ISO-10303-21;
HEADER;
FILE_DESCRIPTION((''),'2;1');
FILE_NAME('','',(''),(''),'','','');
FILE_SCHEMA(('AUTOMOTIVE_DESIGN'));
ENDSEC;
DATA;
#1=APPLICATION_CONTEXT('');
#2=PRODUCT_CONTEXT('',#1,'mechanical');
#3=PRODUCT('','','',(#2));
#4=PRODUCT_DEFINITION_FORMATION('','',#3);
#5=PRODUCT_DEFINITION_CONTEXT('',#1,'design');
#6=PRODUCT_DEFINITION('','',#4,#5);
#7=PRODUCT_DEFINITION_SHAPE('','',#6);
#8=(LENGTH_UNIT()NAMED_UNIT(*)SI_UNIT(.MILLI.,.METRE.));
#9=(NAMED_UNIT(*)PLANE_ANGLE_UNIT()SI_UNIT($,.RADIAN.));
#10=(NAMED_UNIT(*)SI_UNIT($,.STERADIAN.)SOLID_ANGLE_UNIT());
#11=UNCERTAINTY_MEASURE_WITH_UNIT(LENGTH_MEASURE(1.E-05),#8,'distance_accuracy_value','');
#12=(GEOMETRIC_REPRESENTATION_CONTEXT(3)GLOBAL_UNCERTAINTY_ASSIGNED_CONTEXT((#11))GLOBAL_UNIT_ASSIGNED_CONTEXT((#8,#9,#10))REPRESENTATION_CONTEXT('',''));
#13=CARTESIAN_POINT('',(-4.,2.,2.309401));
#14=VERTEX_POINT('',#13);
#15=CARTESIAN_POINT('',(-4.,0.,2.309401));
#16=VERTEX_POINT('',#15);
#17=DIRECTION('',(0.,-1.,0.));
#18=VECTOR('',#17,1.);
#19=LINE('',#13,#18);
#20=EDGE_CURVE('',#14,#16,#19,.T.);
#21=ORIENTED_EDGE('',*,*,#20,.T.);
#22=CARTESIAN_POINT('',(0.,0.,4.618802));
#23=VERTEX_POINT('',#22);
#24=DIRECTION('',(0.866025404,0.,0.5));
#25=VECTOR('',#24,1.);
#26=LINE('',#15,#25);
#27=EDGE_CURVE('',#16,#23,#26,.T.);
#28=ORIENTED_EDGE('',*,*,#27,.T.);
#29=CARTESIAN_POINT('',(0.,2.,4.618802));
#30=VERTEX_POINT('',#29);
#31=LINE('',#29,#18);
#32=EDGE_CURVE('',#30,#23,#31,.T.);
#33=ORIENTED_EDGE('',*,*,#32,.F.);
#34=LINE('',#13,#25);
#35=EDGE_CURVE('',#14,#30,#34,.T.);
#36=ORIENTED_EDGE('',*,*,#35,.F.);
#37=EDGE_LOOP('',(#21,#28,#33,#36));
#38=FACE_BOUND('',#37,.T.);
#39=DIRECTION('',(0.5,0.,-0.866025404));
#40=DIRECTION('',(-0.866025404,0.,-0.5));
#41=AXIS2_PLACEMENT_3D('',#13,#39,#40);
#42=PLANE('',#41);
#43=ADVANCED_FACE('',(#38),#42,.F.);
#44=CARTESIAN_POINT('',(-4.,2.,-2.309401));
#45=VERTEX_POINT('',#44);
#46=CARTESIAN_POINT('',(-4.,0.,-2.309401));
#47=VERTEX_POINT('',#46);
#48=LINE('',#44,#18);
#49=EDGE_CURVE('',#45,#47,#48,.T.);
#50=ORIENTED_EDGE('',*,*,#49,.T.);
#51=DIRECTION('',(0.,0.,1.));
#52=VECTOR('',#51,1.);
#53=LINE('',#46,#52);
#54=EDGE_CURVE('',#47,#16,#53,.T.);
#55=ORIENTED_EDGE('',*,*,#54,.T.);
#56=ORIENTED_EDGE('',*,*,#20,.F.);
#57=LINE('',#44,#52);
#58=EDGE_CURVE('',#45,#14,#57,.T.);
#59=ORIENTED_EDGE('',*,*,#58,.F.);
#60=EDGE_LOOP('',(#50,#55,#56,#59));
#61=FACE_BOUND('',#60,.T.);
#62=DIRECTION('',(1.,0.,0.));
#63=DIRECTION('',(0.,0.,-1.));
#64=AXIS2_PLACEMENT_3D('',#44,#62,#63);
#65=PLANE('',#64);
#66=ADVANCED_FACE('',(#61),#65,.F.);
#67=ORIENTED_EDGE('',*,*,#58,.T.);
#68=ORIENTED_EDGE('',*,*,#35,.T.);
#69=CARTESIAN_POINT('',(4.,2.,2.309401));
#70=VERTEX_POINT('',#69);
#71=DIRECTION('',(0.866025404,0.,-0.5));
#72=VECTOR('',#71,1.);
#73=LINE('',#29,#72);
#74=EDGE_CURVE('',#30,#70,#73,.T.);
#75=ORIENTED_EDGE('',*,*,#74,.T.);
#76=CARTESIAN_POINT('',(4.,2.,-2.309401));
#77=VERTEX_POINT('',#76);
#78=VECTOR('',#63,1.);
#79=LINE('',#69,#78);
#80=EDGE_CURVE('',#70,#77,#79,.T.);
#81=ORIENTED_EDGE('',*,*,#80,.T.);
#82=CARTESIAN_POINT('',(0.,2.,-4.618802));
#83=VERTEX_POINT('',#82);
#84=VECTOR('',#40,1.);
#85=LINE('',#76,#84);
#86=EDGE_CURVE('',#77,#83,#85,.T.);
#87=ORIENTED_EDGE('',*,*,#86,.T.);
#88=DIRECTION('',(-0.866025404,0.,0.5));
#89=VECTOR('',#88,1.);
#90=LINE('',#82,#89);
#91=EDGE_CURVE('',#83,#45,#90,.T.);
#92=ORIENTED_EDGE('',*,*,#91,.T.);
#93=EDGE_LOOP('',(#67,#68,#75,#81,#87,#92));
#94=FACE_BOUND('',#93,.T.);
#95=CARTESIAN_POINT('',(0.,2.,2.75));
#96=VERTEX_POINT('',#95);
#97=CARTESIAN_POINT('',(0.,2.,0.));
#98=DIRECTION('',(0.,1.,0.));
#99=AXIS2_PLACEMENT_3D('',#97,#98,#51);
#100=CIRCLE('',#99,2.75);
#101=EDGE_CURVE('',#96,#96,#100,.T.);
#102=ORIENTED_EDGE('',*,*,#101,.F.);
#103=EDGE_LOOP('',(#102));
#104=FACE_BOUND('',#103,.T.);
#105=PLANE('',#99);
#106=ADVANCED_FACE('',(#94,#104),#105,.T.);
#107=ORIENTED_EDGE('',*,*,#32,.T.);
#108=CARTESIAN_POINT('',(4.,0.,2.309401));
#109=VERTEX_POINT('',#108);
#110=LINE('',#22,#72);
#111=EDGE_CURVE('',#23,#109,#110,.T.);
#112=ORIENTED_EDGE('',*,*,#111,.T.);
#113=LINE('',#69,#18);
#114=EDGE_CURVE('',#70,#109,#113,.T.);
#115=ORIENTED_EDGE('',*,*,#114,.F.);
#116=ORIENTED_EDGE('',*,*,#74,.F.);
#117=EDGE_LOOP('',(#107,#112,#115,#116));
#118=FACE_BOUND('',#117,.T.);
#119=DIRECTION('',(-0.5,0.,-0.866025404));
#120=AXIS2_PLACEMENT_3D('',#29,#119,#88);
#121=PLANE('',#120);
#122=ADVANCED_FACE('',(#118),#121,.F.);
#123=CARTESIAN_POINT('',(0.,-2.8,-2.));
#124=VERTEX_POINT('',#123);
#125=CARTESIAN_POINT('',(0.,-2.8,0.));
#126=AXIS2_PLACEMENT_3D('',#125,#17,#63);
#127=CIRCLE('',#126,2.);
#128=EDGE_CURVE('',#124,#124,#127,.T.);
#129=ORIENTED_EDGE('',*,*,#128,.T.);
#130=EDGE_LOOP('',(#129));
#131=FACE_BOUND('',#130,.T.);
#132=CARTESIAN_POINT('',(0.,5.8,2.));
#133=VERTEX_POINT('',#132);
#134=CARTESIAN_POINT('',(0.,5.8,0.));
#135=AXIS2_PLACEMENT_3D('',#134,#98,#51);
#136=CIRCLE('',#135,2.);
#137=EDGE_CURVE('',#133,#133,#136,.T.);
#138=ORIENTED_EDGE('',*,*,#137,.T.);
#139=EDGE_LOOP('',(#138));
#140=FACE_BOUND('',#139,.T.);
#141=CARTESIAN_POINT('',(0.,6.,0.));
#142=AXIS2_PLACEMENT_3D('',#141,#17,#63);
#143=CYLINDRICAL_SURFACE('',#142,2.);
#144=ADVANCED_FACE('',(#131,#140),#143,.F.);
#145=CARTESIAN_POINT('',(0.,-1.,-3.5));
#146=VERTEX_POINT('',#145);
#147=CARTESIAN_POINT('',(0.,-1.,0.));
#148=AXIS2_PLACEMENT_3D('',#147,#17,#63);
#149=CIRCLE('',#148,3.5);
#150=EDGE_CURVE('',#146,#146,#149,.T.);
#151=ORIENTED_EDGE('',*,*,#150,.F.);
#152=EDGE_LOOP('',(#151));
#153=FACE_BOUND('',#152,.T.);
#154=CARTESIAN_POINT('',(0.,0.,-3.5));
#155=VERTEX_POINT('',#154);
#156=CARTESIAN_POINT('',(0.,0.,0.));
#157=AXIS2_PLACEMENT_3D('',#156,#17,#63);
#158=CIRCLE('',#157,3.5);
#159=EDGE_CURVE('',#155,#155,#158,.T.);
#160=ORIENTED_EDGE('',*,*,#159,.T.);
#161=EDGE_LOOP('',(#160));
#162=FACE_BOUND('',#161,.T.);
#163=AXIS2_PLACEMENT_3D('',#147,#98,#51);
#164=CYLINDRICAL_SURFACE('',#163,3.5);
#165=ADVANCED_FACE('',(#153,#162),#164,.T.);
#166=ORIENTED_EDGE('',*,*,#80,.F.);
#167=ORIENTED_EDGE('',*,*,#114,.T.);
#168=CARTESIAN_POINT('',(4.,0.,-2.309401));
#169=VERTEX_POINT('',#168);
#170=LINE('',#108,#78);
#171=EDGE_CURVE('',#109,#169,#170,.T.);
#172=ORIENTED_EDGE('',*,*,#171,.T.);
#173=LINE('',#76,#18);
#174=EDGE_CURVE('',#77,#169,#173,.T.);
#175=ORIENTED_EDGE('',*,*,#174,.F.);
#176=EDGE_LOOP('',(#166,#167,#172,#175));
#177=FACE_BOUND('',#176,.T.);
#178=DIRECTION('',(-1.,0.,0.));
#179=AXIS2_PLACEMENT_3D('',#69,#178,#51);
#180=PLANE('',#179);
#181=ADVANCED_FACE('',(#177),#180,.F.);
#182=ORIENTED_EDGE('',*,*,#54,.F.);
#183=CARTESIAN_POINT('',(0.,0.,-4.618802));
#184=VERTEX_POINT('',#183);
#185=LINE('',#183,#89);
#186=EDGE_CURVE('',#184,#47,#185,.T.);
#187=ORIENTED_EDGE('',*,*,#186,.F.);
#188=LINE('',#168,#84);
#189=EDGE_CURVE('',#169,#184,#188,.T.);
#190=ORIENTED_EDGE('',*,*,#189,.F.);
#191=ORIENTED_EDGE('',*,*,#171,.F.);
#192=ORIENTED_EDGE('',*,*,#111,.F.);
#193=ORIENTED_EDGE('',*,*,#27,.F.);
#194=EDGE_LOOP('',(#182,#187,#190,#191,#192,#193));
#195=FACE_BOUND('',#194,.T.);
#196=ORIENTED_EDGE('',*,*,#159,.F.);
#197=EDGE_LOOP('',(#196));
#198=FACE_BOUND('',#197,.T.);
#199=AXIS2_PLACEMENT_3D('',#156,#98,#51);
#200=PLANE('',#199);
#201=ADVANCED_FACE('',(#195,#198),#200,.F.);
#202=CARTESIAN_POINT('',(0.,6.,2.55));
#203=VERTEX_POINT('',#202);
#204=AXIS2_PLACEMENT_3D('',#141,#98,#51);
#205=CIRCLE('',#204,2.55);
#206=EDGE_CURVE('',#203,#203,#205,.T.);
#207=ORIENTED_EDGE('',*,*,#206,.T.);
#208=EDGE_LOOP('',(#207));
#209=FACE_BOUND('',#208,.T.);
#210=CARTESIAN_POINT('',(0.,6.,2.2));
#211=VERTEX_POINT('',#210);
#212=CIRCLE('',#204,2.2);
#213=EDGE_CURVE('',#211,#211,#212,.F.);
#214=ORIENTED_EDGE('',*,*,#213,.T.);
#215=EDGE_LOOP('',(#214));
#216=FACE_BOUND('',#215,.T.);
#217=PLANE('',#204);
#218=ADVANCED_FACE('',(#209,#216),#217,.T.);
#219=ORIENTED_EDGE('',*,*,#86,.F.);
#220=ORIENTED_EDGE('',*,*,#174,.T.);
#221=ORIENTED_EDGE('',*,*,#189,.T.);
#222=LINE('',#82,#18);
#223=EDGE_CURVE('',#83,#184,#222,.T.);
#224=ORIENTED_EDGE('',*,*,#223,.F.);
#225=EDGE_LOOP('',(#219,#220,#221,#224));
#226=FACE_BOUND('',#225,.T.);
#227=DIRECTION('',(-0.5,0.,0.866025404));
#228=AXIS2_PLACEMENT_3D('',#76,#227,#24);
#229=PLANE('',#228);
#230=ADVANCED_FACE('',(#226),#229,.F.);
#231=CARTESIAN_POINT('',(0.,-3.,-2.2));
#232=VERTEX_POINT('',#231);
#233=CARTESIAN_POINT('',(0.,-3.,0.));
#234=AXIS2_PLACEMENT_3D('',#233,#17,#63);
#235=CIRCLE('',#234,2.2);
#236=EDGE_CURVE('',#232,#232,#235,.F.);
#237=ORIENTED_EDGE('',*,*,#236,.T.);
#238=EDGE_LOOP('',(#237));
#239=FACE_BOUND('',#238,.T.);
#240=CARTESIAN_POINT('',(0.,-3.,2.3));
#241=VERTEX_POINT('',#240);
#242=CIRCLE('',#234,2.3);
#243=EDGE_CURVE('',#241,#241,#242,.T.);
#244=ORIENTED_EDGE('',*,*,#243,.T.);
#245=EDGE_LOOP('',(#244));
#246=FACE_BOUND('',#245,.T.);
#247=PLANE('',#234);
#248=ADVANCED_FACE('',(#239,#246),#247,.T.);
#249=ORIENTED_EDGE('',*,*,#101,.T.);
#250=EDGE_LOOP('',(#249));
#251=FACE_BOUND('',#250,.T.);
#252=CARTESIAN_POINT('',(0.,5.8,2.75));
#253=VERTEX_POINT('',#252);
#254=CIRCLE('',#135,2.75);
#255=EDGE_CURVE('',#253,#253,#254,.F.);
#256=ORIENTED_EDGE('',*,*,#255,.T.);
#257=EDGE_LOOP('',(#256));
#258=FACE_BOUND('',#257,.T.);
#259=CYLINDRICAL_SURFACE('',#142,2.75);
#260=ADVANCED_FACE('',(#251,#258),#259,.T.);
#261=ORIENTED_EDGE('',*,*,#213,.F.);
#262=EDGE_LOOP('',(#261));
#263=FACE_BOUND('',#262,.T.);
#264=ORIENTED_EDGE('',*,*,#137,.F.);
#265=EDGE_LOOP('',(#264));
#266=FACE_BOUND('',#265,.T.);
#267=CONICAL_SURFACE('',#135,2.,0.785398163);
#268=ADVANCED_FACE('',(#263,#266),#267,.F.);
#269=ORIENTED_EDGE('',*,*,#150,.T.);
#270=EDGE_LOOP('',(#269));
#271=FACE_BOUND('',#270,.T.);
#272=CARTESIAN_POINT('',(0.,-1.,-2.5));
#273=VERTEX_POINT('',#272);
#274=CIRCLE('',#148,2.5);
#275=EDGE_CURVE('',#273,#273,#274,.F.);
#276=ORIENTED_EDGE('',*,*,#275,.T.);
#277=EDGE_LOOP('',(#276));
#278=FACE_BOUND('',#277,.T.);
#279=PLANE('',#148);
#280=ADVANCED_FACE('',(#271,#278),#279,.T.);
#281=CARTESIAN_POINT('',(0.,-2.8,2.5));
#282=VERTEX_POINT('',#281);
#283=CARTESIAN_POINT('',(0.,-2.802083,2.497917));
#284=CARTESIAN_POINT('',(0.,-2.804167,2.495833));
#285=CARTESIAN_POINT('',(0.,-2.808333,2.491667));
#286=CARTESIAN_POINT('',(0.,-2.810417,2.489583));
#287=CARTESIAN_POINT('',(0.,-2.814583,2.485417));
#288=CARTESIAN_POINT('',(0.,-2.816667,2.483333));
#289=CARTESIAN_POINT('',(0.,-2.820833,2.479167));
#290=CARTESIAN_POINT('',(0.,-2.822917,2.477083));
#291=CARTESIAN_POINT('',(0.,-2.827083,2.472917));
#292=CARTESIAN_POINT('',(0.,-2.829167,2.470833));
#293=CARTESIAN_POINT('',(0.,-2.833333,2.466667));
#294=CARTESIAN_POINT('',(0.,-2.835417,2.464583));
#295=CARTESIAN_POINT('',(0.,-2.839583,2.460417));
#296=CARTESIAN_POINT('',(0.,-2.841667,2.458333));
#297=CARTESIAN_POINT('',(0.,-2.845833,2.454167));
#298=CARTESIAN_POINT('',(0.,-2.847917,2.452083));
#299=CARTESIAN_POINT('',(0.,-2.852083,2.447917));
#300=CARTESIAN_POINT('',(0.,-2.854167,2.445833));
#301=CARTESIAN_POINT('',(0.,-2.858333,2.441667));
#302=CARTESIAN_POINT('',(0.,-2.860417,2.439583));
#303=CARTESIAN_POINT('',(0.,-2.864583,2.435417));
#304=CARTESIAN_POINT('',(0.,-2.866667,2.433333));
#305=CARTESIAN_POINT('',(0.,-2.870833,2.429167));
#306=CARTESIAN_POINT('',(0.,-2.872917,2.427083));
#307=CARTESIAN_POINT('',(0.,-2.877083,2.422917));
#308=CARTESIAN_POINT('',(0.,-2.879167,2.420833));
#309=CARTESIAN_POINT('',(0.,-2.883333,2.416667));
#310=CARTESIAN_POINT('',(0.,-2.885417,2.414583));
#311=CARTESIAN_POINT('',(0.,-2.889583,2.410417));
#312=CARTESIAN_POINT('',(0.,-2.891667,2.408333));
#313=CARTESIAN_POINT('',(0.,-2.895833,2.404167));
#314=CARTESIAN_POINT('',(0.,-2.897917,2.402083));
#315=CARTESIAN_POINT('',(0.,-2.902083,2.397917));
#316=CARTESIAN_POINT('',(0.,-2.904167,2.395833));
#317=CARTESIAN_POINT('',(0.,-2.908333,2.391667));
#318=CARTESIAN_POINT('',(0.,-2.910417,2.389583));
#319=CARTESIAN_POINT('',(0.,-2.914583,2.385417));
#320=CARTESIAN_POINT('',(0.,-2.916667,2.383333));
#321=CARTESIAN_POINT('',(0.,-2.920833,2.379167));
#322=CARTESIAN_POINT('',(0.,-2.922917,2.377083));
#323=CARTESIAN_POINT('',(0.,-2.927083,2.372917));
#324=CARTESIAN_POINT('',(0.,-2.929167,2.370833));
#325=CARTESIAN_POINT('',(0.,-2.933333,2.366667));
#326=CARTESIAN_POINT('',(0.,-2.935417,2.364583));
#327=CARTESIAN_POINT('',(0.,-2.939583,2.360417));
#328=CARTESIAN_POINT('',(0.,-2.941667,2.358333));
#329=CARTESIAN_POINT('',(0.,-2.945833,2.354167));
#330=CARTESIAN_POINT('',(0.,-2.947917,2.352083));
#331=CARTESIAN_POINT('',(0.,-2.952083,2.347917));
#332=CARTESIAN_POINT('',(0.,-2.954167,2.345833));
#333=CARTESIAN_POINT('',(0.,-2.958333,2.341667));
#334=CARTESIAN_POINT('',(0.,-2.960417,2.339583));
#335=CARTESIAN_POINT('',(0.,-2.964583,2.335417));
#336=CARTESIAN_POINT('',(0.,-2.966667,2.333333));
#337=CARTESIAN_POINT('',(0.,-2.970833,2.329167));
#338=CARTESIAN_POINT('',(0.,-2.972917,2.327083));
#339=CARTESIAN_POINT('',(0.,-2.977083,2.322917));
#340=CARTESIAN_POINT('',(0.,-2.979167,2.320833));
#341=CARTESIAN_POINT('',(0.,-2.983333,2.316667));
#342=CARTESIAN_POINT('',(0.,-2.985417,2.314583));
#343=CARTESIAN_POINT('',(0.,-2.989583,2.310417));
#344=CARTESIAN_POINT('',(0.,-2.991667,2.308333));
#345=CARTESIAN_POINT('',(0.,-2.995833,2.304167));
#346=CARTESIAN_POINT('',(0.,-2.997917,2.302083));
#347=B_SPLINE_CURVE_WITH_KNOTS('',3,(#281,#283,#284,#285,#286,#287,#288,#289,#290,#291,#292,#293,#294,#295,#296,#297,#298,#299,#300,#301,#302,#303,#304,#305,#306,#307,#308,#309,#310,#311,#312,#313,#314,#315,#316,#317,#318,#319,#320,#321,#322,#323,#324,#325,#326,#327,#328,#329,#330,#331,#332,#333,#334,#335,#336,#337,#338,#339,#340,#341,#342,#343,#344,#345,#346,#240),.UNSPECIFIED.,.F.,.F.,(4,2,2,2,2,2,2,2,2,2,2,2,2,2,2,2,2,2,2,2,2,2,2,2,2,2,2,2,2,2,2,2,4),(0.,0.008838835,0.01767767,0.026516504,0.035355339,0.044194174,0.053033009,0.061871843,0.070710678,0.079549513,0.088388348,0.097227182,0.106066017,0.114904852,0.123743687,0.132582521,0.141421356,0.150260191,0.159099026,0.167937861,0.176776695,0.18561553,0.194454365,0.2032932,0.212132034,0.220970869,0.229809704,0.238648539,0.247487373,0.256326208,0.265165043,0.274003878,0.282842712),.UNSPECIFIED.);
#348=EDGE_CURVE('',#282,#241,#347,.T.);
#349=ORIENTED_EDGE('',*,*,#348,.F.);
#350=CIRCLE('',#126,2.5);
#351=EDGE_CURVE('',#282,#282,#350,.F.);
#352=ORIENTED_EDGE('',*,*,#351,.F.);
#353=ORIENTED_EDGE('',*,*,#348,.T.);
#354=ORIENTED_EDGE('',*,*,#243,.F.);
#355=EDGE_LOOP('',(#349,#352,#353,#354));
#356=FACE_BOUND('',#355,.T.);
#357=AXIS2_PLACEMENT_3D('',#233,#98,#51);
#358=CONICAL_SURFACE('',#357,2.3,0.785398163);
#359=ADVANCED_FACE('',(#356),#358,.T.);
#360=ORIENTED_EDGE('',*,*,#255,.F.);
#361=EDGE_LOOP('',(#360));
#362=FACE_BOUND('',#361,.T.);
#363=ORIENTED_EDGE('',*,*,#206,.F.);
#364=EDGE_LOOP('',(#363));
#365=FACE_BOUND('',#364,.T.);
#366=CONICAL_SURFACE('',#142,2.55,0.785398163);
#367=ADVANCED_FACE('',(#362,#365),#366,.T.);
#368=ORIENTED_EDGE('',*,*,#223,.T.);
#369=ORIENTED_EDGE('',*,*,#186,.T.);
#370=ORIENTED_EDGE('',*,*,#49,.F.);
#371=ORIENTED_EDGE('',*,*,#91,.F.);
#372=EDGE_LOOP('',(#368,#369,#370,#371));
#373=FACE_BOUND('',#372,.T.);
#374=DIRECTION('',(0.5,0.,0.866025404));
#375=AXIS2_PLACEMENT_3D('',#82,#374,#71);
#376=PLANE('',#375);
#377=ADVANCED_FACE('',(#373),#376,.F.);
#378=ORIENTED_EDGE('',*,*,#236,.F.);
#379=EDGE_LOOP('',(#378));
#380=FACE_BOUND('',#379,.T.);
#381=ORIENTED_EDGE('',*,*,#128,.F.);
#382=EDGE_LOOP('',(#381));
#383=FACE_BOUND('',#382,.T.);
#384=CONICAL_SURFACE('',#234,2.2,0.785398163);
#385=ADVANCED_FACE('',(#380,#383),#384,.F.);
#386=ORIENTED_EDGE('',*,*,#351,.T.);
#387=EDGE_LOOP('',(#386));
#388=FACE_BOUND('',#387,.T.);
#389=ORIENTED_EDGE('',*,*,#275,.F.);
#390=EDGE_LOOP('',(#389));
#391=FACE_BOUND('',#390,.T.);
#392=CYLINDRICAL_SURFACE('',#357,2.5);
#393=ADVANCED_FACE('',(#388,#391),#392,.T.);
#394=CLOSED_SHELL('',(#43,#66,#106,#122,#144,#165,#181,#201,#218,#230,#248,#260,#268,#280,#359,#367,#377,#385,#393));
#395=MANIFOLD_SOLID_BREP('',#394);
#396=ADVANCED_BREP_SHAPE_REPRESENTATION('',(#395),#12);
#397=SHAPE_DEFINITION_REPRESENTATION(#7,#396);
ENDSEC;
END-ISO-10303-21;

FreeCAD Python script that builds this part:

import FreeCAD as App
import Part
import Sketcher
from FreeCAD import Vector
Q = App.Units.Quantity


def edges_at(feature, points):
    """Names of the edges that pass closest to the given points."""
    edges = feature.Shape.Edges
    near = lambda p: min(range(len(edges)), key=lambda i: edges[i].distToShape(Part.Vertex(*p))[0])
    return sorted({f"Edge{near(p) + 1}" for p in points})

doc = App.newDocument("Part")
body = doc.addObject("PartDesign::Body", "Body")

sketch1 = doc.addObject("Sketcher::SketchObject", "Sketch")
body.addObject(sketch1)
sketch1.AttachmentSupport = (doc.XZ_Plane, [""])
sketch1.MapMode = "FlatFace"
sketch1.addGeometry(Part.LineSegment(Vector(0, -4.6, 0), Vector(-4, -2.3, 0)), False)
sketch1.addGeometry(Part.LineSegment(Vector(-4, -2.3, 0), Vector(-4, 2.3, 0)), False)
sketch1.addGeometry(Part.LineSegment(Vector(-4, 2.3, 0), Vector(0, 4.6, 0)), False)
sketch1.addGeometry(Part.LineSegment(Vector(0, 4.6, 0), Vector(4, 2.3, 0)), False)
sketch1.addGeometry(Part.LineSegment(Vector(4, 2.3, 0), Vector(4, -2.3, 0)), False)
sketch1.addGeometry(Part.LineSegment(Vector(4, -2.3, 0), Vector(0, -4.6, 0)), False)
sketch1.addConstraint(Sketcher.Constraint("Coincident", 0, 2, 1, 1))
sketch1.addConstraint(Sketcher.Constraint("Coincident", 1, 2, 2, 1))
sketch1.addConstraint(Sketcher.Constraint("Coincident", 2, 2, 3, 1))
sketch1.addConstraint(Sketcher.Constraint("Coincident", 3, 2, 4, 1))
sketch1.addConstraint(Sketcher.Constraint("Coincident", 4, 2, 5, 1))
sketch1.addConstraint(Sketcher.Constraint("Coincident", 5, 2, 0, 1))
sketch1.addConstraint(Sketcher.Constraint("Vertical", 1))
sketch1.addConstraint(Sketcher.Constraint("Vertical", 4))
sketch1.addConstraint(Sketcher.Constraint("Symmetric", 0, 2, 3, 2, -1, 1))
sketch1.addConstraint(Sketcher.Constraint("Symmetric", 2, 2, 5, 2, -1, 1))
sketch1.addConstraint(Sketcher.Constraint("PointOnObject", 2, 2, -2))
sketch1.addConstraint(Sketcher.Constraint("Parallel", 2, 5))
sketch1.addConstraint(Sketcher.Constraint("Horizontal", 1, 2, 3, 2))
sketch1.addConstraint(Sketcher.Constraint("Angle", 0, Q("150 deg")))
sketch1.addConstraint(Sketcher.Constraint("DistanceX", 0, 2, -1, 1, Q("4 mm")))
sketch1.addConstraint(Sketcher.Constraint("DistanceY", 0, 2, -1, 1, Q("2.309401 mm")))
pad1 = doc.addObject("PartDesign::Pad", "Pad")
body.addObject(pad1)
pad1.Profile = sketch1
pad1.Length = 2
pad1.Reversed = True

sketch2 = doc.addObject("Sketcher::SketchObject", "Sketch001")
body.addObject(sketch2)
sketch2.AttachmentSupport = (doc.XZ_Plane, [""])
sketch2.MapMode = "FlatFace"
sketch2.AttachmentOffset = App.Placement(Vector(0, 0, -2), App.Rotation())
sketch2.addGeometry(Part.Circle(Vector(0, 0, 0), Vector(0, 0, 1), 2.8), False)
sketch2.addConstraint(Sketcher.Constraint("Coincident", 0, 3, -1, 1))
sketch2.addConstraint(Sketcher.Constraint("Diameter", 0, Q("5.5 mm")))
pad2 = doc.addObject("PartDesign::Pad", "Pad001")
body.addObject(pad2)
pad2.Profile = sketch2
pad2.Length = 4
pad2.Reversed = True

sketch3 = doc.addObject("Sketcher::SketchObject", "Sketch002")
body.addObject(sketch3)
sketch3.AttachmentSupport = (doc.XZ_Plane, [""])
sketch3.MapMode = "FlatFace"
sketch3.AttachmentOffset = App.Placement(Vector(0, 0, -2), App.Rotation())
sketch3.addGeometry(Part.Circle(Vector(0, 0, 0), Vector(0, 0, 1), 2), False)
sketch3.addConstraint(Sketcher.Constraint("Coincident", 0, 3, -1, 1))
sketch3.addConstraint(Sketcher.Constraint("Diameter", 0, Q("4 mm")))
pocket1 = doc.addObject("PartDesign::Pocket", "Pocket")
body.addObject(pocket1)
pocket1.Profile = sketch3
pocket1.Length = 4

sketch4 = doc.addObject("Sketcher::SketchObject", "Sketch003")
body.addObject(sketch4)
sketch4.AttachmentSupport = (doc.XZ_Plane, [""])
sketch4.MapMode = "FlatFace"
sketch4.addGeometry(Part.Circle(Vector(0, 0, 0), Vector(0, 0, 1), 3.5), False)
sketch4.addConstraint(Sketcher.Constraint("Coincident", 0, 3, -1, 1))
sketch4.addConstraint(Sketcher.Constraint("Diameter", 0, Q("7 mm")))
pad3 = doc.addObject("PartDesign::Pad", "Pad002")
body.addObject(pad3)
pad3.Profile = sketch4
pad3.Length = 1

sketch5 = doc.addObject("Sketcher::SketchObject", "Sketch004")
body.addObject(sketch5)
sketch5.AttachmentSupport = (doc.XZ_Plane, [""])
sketch5.MapMode = "FlatFace"
sketch5.addGeometry(Part.Circle(Vector(0, 0, 0), Vector(0, 0, 1), 2.5), False)
sketch5.addConstraint(Sketcher.Constraint("Coincident", 0, 3, -1, 1))
sketch5.addConstraint(Sketcher.Constraint("Diameter", 0, Q("5 mm")))
pad4 = doc.addObject("PartDesign::Pad", "Pad003")
body.addObject(pad4)
pad4.Profile = sketch5
pad4.Length = 3

sketch6 = doc.addObject("Sketcher::SketchObject", "Sketch005")
body.addObject(sketch6)
sketch6.AttachmentSupport = (doc.XZ_Plane, [""])
sketch6.MapMode = "FlatFace"
sketch6.AttachmentOffset = App.Placement(Vector(0, 0, -2), App.Rotation())
sketch6.addGeometry(Part.Circle(Vector(0, 0, 0), Vector(0, 0, 1), 2), False)
sketch6.addConstraint(Sketcher.Constraint("Coincident", 0, 3, -1, 1))
sketch6.addConstraint(Sketcher.Constraint("Diameter", 0, Q("4 mm")))
pocket2 = doc.addObject("PartDesign::Pocket", "Pocket001")
body.addObject(pocket2)
pocket2.Profile = sketch6
pocket2.Type = "ThroughAll"
pocket2.Reversed = True
doc.recompute()

chamfer = doc.addObject("PartDesign::Chamfer", "Chamfer")
body.addObject(chamfer)
chamfer.Base = (pocket2, edges_at(pocket2, [
    (0, 6, -2.75),
    (0, 6, -2),
    (0, -3, 2.5),
    (0, -3, -2),
]))
chamfer.Size = 0.2

doc.recompute()
